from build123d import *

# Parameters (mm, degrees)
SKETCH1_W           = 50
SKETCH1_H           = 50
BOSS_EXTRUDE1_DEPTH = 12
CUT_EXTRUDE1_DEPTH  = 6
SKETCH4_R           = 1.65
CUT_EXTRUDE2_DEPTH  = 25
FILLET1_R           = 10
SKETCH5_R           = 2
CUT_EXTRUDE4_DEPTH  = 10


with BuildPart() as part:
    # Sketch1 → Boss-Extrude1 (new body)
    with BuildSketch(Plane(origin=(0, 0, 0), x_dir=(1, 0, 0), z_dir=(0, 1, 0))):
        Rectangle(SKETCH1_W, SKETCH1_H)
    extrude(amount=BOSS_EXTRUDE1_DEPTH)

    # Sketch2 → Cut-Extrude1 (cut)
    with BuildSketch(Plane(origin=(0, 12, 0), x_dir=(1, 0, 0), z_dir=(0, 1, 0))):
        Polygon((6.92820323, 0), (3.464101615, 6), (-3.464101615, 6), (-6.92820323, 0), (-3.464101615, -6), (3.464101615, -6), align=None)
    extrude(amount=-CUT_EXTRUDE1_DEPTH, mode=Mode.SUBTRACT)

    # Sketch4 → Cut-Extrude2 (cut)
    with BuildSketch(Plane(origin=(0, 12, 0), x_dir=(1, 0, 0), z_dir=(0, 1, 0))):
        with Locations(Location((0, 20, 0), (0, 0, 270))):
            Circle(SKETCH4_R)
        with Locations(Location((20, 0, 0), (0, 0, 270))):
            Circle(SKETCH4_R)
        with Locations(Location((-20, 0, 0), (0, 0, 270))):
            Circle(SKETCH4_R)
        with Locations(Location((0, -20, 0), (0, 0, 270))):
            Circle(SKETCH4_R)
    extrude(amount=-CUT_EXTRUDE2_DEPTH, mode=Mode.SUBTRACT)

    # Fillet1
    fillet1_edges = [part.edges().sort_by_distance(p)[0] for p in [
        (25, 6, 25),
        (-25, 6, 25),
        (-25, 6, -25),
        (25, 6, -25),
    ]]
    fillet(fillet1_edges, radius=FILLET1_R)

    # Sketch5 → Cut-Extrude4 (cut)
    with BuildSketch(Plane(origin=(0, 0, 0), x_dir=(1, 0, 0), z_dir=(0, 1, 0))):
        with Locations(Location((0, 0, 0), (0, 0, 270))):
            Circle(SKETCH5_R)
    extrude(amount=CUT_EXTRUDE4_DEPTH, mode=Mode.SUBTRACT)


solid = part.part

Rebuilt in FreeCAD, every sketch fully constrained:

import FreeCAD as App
import Part
import Sketcher

V = App.Vector
Q = App.Units.Quantity


def edges_at(feature, points):
    """Names of the edges that pass closest to the given points."""
    edges = feature.Shape.Edges
    near = lambda p: min(range(len(edges)), key=lambda i: edges[i].distToShape(Part.Vertex(*p))[0])
    return sorted({f"Edge{near(p) + 1}" for p in points})


def add_polygon(sketch, points):
    """Adds a closed chain of lines whose ends are joined by coincident constraints."""
    first, n = sketch.GeometryCount, len(points)
    for a, b in zip(points, points[1:] + points[:1]):
        sketch.addGeometry(Part.LineSegment(App.Vector(*a, 0), App.Vector(*b, 0)), False)
    for i in range(n):
        sketch.addConstraint(Sketcher.Constraint("Coincident", first + i, 2, first + (i + 1) % n, 1))

doc = App.newDocument("Part")
params = doc.addObject("Spreadsheet::Sheet", "Params")
for row, (alias, value) in enumerate([
    ("sketch1_width", "50 mm"),
    ("pad1_length", "12 mm"),
    ("pocket1_length", "6 mm"),
    ("sketch3_diameter", "3.3 mm"),
    ("pocket2_length", "25 mm"),
    ("fillet_radius", "10 mm"),
    ("sketch4_diameter", "4 mm"),
    ("pocket3_length", "10 mm"),
], start=1):
    params.set(f"A{row}", alias)
    params.set(f"B{row}", "=" + value)
    params.setAlias(f"B{row}", alias)

body = doc.addObject("PartDesign::Body", "Body")

# Sketch on XZ plane
sketch1 = body.newObject("Sketcher::SketchObject", "Sketch")
sketch1.AttachmentSupport = (doc.getObject("XZ_Plane"), [""])
sketch1.MapMode = "FlatFace"
add_polygon(sketch1, [(-25, -25), (-25, 25), (25, 25), (25, -25)])  # lines 0-3
sketch1.addConstraint([
    Sketcher.Constraint("Vertical", 0),
    Sketcher.Constraint("Horizontal", 1),
    Sketcher.Constraint("Vertical", 2),
    Sketcher.Constraint("Horizontal", 3),
    Sketcher.Constraint("Symmetric", 0, 2, 2, 2, -1, 1),
    Sketcher.Constraint("Equal", 3, 0),
    Sketcher.Constraint("DistanceX", 1, 1, 1, 2, Q("50 mm")),
])
sketch1.setExpression("Constraints[10]", "Params.sketch1_width")
pad1 = body.newObject("PartDesign::Pad", "Pad")
pad1.Profile = sketch1
pad1.setExpression("Length", "Params.pad1_length")
pad1.Reversed = True

# Sketch on XZ plane
sketch2 = body.newObject("Sketcher::SketchObject", "Sketch001")
sketch2.AttachmentSupport = (doc.getObject("XZ_Plane"), [""])
sketch2.MapMode = "FlatFace"
sketch2.AttachmentOffset = App.Placement(V(0, 0, -12), App.Rotation())
add_polygon(sketch2, [(6.928203, 0), (3.464102, -6), (-3.464102, -6), (-6.928203, 0), (-3.464102, 6), (3.464102, 6)])  # lines 0-5
sketch2.addConstraint([
    Sketcher.Constraint("Horizontal", 1),
    Sketcher.Constraint("Horizontal", 4),
    Sketcher.Constraint("Symmetric", 0, 2, 3, 2, -1, 1),
    Sketcher.Constraint("Symmetric", 2, 2, 5, 2, -1, 1),
    Sketcher.Constraint("PointOnObject", 2, 2, -1),
    Sketcher.Constraint("Parallel", 2, 5),
    Sketcher.Constraint("Vertical", 1, 2, 3, 2),
    Sketcher.Constraint("Angle", 0, Q("-120 deg")),
    Sketcher.Constraint("DistanceY", 0, 2, -1, 1, Q("6 mm")),
    Sketcher.Constraint("DistanceX", -1, 1, 0, 2, Q("3.464102 mm")),
])
pocket1 = body.newObject("PartDesign::Pocket", "Pocket")
pocket1.Profile = sketch2
pocket1.setExpression("Length", "Params.pocket1_length")
pocket1.Reversed = True

# Sketch on XZ plane
sketch3 = body.newObject("Sketcher::SketchObject", "Sketch002")
sketch3.AttachmentSupport = (doc.getObject("XZ_Plane"), [""])
sketch3.MapMode = "FlatFace"
sketch3.AttachmentOffset = App.Placement(V(0, 0, -12), App.Rotation())
sketch3.addGeometry([
    Part.Circle(V(0, -20, 0), V(0, 0, 1), 1.65),
    Part.Circle(V(20, 0, 0), V(0, 0, 1), 1.65),
    Part.Circle(V(-20, 0, 0), V(0, 0, 1), 1.65),
    Part.Circle(V(0, 20, 0), V(0, 0, 1), 1.65),
], False)
sketch3.addConstraint([
    Sketcher.Constraint("Equal", 0, 1),
    Sketcher.Constraint("Equal", 1, 2),
    Sketcher.Constraint("Equal", 2, 3),
    Sketcher.Constraint("Symmetric", 1, 3, 2, 3, -1, 1),
    Sketcher.Constraint("Symmetric", 0, 3, 3, 3, -1, 1),
    Sketcher.Constraint("PointOnObject", 0, 3, -2),
    Sketcher.Constraint("PointOnObject", 1, 3, -1),
    Sketcher.Constraint("Diameter", 0, Q("3.3 mm")),
    Sketcher.Constraint("DistanceY", 0, 3, -1, 1, Q("20 mm")),
    Sketcher.Constraint("DistanceX", -1, 1, 1, 3, Q("20 mm")),
])
sketch3.setExpression("Constraints[7]", "Params.sketch3_diameter")
pocket2 = body.newObject("PartDesign::Pocket", "Pocket001")
pocket2.Profile = sketch3
pocket2.setExpression("Length", "Params.pocket2_length")
pocket2.Reversed = True
doc.recompute()

fillet = body.newObject("PartDesign::Fillet", "Fillet")
fillet.Base = (pocket2, edges_at(pocket2, [
    (25, 6, 25),
    (-25, 6, 25),
    (-25, 6, -25),
    (25, 6, -25),
]))
fillet.setExpression("Radius", "Params.fillet_radius")

# Sketch on XZ plane
sketch4 = body.newObject("Sketcher::SketchObject", "Sketch003")
sketch4.AttachmentSupport = (doc.getObject("XZ_Plane"), [""])
sketch4.MapMode = "FlatFace"
sketch4.addGeometry(Part.Circle(V(0, 0, 0), V(0, 0, 1), 2), False)
sketch4.addConstraint([
    Sketcher.Constraint("Coincident", 0, 3, -1, 1),
    Sketcher.Constraint("Diameter", 0, Q("4 mm")),
])
sketch4.setExpression("Constraints[1]", "Params.sketch4_diameter")
pocket3 = body.newObject("PartDesign::Pocket", "Pocket002")
pocket3.Profile = sketch4
pocket3.setExpression("Length", "Params.pocket3_length")

doc.recompute()
